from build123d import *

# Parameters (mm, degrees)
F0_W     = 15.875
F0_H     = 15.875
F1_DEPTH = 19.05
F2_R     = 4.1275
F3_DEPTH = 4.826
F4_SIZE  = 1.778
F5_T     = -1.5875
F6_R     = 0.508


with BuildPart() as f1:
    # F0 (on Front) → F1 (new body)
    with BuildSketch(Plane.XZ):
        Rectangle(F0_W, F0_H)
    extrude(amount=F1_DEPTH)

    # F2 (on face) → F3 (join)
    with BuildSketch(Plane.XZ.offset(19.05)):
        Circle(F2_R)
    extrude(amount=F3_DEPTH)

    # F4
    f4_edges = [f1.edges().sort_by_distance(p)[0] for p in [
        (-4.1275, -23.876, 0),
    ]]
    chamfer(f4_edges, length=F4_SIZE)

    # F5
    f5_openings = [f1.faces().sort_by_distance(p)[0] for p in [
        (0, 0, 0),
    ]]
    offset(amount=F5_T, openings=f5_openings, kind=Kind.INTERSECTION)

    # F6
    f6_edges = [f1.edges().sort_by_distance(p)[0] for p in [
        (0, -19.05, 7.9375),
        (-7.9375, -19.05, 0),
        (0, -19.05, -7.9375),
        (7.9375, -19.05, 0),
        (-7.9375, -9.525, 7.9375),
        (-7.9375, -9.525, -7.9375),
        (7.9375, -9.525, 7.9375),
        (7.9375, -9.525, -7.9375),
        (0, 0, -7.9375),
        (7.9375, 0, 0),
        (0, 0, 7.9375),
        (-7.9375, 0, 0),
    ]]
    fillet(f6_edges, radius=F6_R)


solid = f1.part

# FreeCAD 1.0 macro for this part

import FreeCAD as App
import Part
import Sketcher
from FreeCAD import Vector
Q = App.Units.Quantity


def edges_at(feature, points):
    """Names of the edges that pass closest to the given points."""
    edges = feature.Shape.Edges
    near = lambda p: min(range(len(edges)), key=lambda i: edges[i].distToShape(Part.Vertex(*p))[0])
    return sorted({f"Edge{near(p) + 1}" for p in points})


def faces_at(feature, points):
    """Names of the faces that lie closest to the given points."""
    faces = feature.Shape.Faces
    near = lambda p: min(range(len(faces)), key=lambda i: faces[i].distToShape(Part.Vertex(*p))[0])
    return sorted({f"Face{near(p) + 1}" for p in points})


def add_polygon(sketch, points):
    """Adds a closed chain of lines whose ends are joined by coincident constraints."""
    first, n = sketch.GeometryCount, len(points)
    for a, b in zip(points, points[1:] + points[:1]):
        sketch.addGeometry(Part.LineSegment(App.Vector(*a, 0), App.Vector(*b, 0)), False)
    for i in range(n):
        sketch.addConstraint(Sketcher.Constraint("Coincident", first + i, 2, first + (i + 1) % n, 1))

doc = App.newDocument("Part")
body = doc.addObject("PartDesign::Body", "Body")

# Sketch on XZ plane
sketch1 = doc.addObject("Sketcher::SketchObject", "Sketch")
body.addObject(sketch1)
sketch1.AttachmentSupport = (doc.XZ_Plane, [""])
sketch1.MapMode = "FlatFace"
add_polygon(sketch1, [(-8, 8), (-8, -8), (8, -8), (8, 8)])  # lines 0-3
sketch1.addConstraint(Sketcher.Constraint("Vertical", 0))
sketch1.addConstraint(Sketcher.Constraint("Horizontal", 1))
sketch1.addConstraint(Sketcher.Constraint("Vertical", 2))
sketch1.addConstraint(Sketcher.Constraint("Horizontal", 3))
sketch1.addConstraint(Sketcher.Constraint("Symmetric", 0, 2, 2, 2, -1, 1))
sketch1.addConstraint(Sketcher.Constraint("Equal", 3, 0))
sketch1.addConstraint(Sketcher.Constraint("DistanceX", 1, 1, 1, 2, Q("0.625 in")))
pad1 = doc.addObject("PartDesign::Pad", "Pad")
body.addObject(pad1)
pad1.Profile = sketch1
pad1.Length = Q("0.75 in")

# Sketch on XZ plane
sketch2 = doc.addObject("Sketcher::SketchObject", "Sketch001")
body.addObject(sketch2)
sketch2.AttachmentSupport = (doc.XZ_Plane, [""])
sketch2.MapMode = "FlatFace"
sketch2.AttachmentOffset = App.Placement(Vector(0, 0, 0.75 * 25.4), App.Rotation())
sketch2.addGeometry(Part.Circle(Vector(0, 0, 0), Vector(0, 0, 1), 4.1), False)
sketch2.addConstraint(Sketcher.Constraint("Coincident", 0, 3, -1, 1))
sketch2.addConstraint(Sketcher.Constraint("Diameter", 0, Q("0.325 in")))
pad2 = doc.addObject("PartDesign::Pad", "Pad001")
body.addObject(pad2)
pad2.Profile = sketch2
pad2.Length = Q("0.19 in")
doc.recompute()

chamfer = doc.addObject("PartDesign::Chamfer", "Chamfer")
body.addObject(chamfer)
chamfer.Base = (pad2, edges_at(pad2, [(-4.128, -23.876, 0)]))
chamfer.Size = Q("0.07 in")
doc.recompute()

thickness = doc.addObject("PartDesign::Thickness", "Thickness")
body.addObject(thickness)
thickness.Base = (chamfer, faces_at(chamfer, [(0, 0, 0)]))
thickness.Value = Q("0.0625 in")
thickness.Reversed = True
thickness.Join = "Intersection"
doc.recompute()

fillet = doc.addObject("PartDesign::Fillet", "Fillet")
body.addObject(fillet)
fillet.Base = (thickness, edges_at(thickness, [
    (0, -19.05, 7.938),
    (-7.938, -19.05, 0),
    (0, -19.05, -7.938),
    (7.938, -19.05, 0),
    (-7.938, -9.525, 7.938),
    (-7.938, -9.525, -7.938),
    (7.938, -9.525, 7.938),
    (7.938, -9.525, -7.938),
    (0, 0, -7.938),
    (7.938, 0, 0),
    (0, 0, 7.938),
    (-7.938, 0, 0),
]))
fillet.Radius = Q("0.02 in")

doc.recompute()
